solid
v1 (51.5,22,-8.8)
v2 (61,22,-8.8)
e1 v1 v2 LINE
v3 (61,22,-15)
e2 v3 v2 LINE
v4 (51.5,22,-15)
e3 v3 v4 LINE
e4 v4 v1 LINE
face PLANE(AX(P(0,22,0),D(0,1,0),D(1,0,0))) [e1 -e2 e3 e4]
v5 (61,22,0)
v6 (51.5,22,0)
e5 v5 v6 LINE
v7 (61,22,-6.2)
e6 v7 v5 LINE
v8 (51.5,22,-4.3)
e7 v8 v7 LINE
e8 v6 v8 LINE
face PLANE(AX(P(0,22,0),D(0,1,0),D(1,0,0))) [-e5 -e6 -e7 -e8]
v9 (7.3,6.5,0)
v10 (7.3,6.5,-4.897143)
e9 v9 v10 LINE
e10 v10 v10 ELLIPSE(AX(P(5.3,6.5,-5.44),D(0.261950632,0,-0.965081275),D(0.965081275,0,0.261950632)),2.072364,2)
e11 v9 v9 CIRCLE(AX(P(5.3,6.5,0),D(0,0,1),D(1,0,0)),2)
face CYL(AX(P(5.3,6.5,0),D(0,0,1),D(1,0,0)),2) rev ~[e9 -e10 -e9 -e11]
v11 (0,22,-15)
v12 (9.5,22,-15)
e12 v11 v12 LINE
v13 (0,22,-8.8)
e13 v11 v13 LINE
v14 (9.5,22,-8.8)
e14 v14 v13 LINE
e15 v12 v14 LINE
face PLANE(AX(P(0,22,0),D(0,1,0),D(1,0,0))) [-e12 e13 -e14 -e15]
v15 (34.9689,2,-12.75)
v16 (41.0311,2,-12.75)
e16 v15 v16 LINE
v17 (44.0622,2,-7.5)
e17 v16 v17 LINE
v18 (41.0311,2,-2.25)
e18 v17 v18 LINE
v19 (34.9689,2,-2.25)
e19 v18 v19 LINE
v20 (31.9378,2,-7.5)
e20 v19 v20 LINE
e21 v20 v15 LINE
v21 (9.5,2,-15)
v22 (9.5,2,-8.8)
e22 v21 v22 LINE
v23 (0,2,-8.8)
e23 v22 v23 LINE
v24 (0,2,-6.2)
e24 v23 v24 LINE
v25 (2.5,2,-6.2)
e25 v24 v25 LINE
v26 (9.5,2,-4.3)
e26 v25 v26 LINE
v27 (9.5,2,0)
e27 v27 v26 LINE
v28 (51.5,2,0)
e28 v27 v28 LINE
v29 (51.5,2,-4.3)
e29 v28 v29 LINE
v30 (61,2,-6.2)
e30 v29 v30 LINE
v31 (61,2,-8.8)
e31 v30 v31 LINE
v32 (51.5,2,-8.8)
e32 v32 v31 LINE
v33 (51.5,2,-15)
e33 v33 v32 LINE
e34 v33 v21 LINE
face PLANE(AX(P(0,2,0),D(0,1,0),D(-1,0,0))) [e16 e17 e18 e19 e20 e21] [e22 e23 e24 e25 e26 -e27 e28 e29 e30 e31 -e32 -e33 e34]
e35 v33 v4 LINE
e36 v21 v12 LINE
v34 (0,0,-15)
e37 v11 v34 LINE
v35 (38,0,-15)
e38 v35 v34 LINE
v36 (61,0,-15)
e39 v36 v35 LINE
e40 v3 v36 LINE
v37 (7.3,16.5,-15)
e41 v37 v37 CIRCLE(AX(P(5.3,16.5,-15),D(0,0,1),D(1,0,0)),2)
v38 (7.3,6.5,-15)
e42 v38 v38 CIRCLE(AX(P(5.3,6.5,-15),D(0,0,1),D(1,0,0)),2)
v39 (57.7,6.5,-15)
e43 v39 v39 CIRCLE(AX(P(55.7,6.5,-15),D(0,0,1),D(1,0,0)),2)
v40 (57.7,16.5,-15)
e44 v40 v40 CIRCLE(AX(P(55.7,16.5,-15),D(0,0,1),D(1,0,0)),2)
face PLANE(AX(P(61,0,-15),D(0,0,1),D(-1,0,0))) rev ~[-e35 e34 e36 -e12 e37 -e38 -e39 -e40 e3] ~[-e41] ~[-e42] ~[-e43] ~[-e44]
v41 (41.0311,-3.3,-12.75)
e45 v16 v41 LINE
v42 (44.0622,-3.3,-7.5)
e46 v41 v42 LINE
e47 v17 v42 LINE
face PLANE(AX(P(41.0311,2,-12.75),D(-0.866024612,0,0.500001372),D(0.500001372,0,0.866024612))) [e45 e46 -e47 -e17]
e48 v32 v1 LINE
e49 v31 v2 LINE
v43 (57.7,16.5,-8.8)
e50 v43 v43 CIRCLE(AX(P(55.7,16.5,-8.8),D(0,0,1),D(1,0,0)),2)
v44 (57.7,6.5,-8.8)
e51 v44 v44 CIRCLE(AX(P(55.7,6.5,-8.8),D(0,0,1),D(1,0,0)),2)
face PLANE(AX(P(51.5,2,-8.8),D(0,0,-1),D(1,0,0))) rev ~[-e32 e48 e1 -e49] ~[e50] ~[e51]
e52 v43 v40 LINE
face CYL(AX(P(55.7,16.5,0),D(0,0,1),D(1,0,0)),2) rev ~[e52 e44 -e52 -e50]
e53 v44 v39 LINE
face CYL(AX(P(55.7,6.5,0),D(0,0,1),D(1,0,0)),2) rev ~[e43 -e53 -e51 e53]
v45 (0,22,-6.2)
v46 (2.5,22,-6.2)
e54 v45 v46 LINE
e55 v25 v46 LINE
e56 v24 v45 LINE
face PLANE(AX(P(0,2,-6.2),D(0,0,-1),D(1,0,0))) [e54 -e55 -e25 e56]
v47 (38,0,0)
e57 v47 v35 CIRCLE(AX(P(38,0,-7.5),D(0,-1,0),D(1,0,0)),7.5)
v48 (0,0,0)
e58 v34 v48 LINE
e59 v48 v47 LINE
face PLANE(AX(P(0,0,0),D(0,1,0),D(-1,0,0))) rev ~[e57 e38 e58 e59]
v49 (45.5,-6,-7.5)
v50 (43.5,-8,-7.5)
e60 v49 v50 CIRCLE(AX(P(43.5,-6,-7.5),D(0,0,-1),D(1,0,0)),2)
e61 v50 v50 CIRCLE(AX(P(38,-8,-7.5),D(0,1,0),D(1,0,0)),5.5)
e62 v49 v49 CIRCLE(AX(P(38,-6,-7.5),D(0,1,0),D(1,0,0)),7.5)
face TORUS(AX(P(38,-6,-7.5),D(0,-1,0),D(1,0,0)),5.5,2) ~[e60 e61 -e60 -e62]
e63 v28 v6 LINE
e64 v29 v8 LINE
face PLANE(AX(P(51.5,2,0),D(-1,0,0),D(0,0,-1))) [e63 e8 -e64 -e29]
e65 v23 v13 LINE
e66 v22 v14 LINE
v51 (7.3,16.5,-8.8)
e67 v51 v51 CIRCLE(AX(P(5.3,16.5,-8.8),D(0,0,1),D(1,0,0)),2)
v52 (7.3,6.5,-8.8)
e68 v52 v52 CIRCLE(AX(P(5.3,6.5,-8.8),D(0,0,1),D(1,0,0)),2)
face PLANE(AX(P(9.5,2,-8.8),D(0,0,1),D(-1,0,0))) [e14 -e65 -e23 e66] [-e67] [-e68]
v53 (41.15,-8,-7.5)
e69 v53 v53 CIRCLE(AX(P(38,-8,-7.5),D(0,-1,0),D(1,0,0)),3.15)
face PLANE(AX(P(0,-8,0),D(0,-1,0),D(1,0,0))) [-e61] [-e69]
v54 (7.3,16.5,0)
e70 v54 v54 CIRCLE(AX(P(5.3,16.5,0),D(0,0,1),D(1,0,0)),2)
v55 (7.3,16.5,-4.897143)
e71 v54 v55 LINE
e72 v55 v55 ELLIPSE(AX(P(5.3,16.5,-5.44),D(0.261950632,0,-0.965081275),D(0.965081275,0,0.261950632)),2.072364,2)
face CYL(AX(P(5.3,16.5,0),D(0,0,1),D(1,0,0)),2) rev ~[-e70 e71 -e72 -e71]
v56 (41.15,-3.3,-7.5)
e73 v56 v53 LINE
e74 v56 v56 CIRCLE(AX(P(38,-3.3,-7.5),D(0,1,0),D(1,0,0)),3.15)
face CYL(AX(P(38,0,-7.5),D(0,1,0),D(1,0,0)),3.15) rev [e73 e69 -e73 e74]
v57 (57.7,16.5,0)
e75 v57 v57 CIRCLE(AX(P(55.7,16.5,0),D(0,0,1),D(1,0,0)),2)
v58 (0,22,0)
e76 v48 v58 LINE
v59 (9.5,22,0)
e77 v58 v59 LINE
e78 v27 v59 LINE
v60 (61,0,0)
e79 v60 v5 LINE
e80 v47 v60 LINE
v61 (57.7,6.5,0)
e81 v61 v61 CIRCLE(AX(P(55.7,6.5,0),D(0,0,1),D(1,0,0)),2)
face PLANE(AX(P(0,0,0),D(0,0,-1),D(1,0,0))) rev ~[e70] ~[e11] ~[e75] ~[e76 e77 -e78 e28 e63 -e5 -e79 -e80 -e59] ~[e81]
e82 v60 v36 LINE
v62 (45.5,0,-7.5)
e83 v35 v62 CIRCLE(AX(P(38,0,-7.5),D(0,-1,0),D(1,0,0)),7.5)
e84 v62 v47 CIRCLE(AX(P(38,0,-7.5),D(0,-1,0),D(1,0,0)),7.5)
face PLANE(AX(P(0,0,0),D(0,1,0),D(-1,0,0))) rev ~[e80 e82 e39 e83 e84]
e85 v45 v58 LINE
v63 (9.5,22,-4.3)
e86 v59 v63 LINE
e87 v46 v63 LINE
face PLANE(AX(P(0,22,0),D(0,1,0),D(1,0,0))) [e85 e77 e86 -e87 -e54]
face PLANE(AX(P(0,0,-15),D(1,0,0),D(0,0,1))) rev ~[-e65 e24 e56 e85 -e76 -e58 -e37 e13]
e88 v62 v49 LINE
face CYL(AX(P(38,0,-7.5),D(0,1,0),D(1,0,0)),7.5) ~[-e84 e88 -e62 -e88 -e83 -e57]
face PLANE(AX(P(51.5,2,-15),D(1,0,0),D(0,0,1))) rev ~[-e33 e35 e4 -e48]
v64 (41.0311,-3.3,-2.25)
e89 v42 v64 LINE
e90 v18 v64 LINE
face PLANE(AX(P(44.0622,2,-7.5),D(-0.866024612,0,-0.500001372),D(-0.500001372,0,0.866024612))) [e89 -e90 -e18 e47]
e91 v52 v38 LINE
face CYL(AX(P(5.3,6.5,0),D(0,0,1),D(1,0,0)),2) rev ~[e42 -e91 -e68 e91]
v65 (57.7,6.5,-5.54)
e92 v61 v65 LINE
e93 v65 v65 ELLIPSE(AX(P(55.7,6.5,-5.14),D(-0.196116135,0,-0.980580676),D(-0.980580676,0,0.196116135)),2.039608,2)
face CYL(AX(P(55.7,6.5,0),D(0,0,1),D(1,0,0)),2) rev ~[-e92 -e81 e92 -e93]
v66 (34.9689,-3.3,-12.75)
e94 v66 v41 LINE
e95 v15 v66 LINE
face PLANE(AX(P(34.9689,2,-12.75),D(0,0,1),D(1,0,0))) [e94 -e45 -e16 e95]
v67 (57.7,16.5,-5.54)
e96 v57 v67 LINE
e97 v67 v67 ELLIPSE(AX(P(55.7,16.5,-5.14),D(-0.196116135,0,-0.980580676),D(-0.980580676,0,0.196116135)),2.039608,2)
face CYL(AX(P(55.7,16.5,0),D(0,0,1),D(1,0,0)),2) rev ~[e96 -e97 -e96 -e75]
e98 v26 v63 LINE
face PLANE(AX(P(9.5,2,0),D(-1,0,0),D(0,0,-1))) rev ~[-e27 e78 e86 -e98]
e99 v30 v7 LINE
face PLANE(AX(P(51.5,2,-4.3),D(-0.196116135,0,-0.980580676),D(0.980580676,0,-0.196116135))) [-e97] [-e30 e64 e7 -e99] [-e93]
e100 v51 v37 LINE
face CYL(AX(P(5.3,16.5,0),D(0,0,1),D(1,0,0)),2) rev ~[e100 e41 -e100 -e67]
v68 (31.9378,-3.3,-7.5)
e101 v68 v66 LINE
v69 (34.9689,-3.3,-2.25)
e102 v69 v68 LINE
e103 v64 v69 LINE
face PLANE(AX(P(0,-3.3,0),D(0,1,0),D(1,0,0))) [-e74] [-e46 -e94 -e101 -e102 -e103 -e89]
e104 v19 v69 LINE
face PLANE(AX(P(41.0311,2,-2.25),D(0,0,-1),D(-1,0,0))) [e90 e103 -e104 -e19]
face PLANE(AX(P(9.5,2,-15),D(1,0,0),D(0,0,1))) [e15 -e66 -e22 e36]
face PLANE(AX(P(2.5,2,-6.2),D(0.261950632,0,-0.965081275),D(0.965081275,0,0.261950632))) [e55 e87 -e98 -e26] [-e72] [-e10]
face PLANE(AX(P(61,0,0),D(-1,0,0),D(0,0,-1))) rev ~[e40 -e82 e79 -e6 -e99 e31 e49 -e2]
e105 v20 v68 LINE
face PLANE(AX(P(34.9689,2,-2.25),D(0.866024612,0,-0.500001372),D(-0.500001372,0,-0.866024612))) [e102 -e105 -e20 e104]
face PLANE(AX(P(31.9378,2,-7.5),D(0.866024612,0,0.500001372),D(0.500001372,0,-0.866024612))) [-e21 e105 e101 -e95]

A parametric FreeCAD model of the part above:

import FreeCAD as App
import Part
import Sketcher

V = App.Vector
Q = App.Units.Quantity


def edges_at(feature, points):
    """Names of the edges that pass closest to the given points."""
    edges = feature.Shape.Edges
    near = lambda p: min(range(len(edges)), key=lambda i: edges[i].distToShape(Part.Vertex(*p))[0])
    return sorted({f"Edge{near(p) + 1}" for p in points})

doc = App.newDocument("Part")
body = doc.addObject("PartDesign::Body", "Body")

sketch1 = body.newObject("Sketcher::SketchObject", "Sketch")
sketch1.AttachmentSupport = (doc.getObject("XZ_Plane"), [""])
sketch1.MapMode = "FlatFace"
sketch1.addGeometry([
    Part.LineSegment(V(0, -15, 0), V(0, 0, 0)),
    Part.LineSegment(V(0, 0, 0), V(61, 0, 0)),
    Part.LineSegment(V(61, 0, 0), V(61, -15, 0)),
    Part.LineSegment(V(61, -15, 0), V(0, -15, 0)),
], False)
sketch1.addConstraint([
    Sketcher.Constraint("Coincident", 0, 2, 1, 1),
    Sketcher.Constraint("Coincident", 1, 2, 2, 1),
    Sketcher.Constraint("Coincident", 2, 2, 3, 1),
    Sketcher.Constraint("Coincident", 3, 2, 0, 1),
    Sketcher.Constraint("Vertical", 0),
    Sketcher.Constraint("Horizontal", 1),
    Sketcher.Constraint("Vertical", 2),
    Sketcher.Constraint("Horizontal", 3),
    Sketcher.Constraint("Coincident", 0, 2, -1, 1),
    Sketcher.Constraint("DistanceX", 1, 1, 1, 2, Q("61 mm")),
    Sketcher.Constraint("DistanceY", 0, 1, 0, 2, Q("15 mm")),
])
pad1 = body.newObject("PartDesign::Pad", "Pad")
pad1.Profile = sketch1
pad1.Length = 2
pad1.Reversed = True

sketch2 = body.newObject("Sketcher::SketchObject", "Sketch001")
sketch2.AttachmentSupport = (doc.getObject("XZ_Plane"), [""])
sketch2.MapMode = "FlatFace"
sketch2.AttachmentOffset = App.Placement(V(0, 0, -2), App.Rotation())
sketch2.addGeometry([
    Part.LineSegment(V(9.5, -15, 0), V(0, -15, 0)),
    Part.LineSegment(V(0, -15, 0), V(0, -8.8, 0)),
    Part.LineSegment(V(0, -8.8, 0), V(9.5, -8.8, 0)),
    Part.LineSegment(V(9.5, -8.8, 0), V(9.5, -15, 0)),
    Part.LineSegment(V(2.5, -6.2, 0), V(0, -6.2, 0)),
    Part.LineSegment(V(0, -6.2, 0), V(0, 0, 0)),
    Part.LineSegment(V(0, 0, 0), V(9.5, 0, 0)),
    Part.LineSegment(V(9.5, 0, 0), V(9.5, -4.3, 0)),
    Part.LineSegment(V(9.5, -4.3, 0), V(2.5, -6.2, 0)),
    Part.LineSegment(V(61, 0, 0), V(61, -6.2, 0)),
    Part.LineSegment(V(61, -6.2, 0), V(51.5, -4.3, 0)),
    Part.LineSegment(V(51.5, -4.3, 0), V(51.5, 0, 0)),
    Part.LineSegment(V(51.5, 0, 0), V(61, 0, 0)),
    Part.LineSegment(V(61, -8.8, 0), V(61, -15, 0)),
    Part.LineSegment(V(61, -15, 0), V(51.5, -15, 0)),
    Part.LineSegment(V(51.5, -15, 0), V(51.5, -8.8, 0)),
    Part.LineSegment(V(51.5, -8.8, 0), V(61, -8.8, 0)),
], False)
sketch2.addConstraint([
    Sketcher.Constraint("Coincident", 0, 2, 1, 1),
    Sketcher.Constraint("Coincident", 1, 2, 2, 1),
    Sketcher.Constraint("Coincident", 2, 2, 3, 1),
    Sketcher.Constraint("Coincident", 3, 2, 0, 1),
    Sketcher.Constraint("Coincident", 4, 2, 5, 1),
    Sketcher.Constraint("Coincident", 5, 2, 6, 1),
    Sketcher.Constraint("Coincident", 6, 2, 7, 1),
    Sketcher.Constraint("Coincident", 7, 2, 8, 1),
    Sketcher.Constraint("Coincident", 8, 2, 4, 1),
    Sketcher.Constraint("Coincident", 9, 2, 10, 1),
    Sketcher.Constraint("Coincident", 10, 2, 11, 1),
    Sketcher.Constraint("Coincident", 11, 2, 12, 1),
    Sketcher.Constraint("Coincident", 12, 2, 9, 1),
    Sketcher.Constraint("Coincident", 13, 2, 14, 1),
    Sketcher.Constraint("Coincident", 14, 2, 15, 1),
    Sketcher.Constraint("Coincident", 15, 2, 16, 1),
    Sketcher.Constraint("Coincident", 16, 2, 13, 1),
    Sketcher.Constraint("Horizontal", 0),
    Sketcher.Constraint("Vertical", 1),
    Sketcher.Constraint("Horizontal", 2),
    Sketcher.Constraint("Vertical", 3),
    Sketcher.Constraint("Horizontal", 4),
    Sketcher.Constraint("Vertical", 5),
    Sketcher.Constraint("Horizontal", 6),
    Sketcher.Constraint("Vertical", 7),
    Sketcher.Constraint("Vertical", 9),
    Sketcher.Constraint("Vertical", 11),
    Sketcher.Constraint("Horizontal", 12),
    Sketcher.Constraint("Vertical", 13),
    Sketcher.Constraint("Horizontal", 14),
    Sketcher.Constraint("Vertical", 15),
    Sketcher.Constraint("Horizontal", 16),
    Sketcher.Constraint("Coincident", 5, 2, -1, 1),
    Sketcher.Constraint("PointOnObject", 0, 2, -2),
    Sketcher.Constraint("PointOnObject", 11, 2, -1),
    Sketcher.Constraint("Horizontal", 8, 2, 9, 2),
    Sketcher.Constraint("Horizontal", 7, 2, 10, 2),
    Sketcher.Constraint("Horizontal", 3, 2, 13, 2),
    Sketcher.Constraint("Horizontal", 2, 2, 15, 2),
    Sketcher.Constraint("Vertical", 3, 2, 6, 2),
    Sketcher.Constraint("Vertical", 12, 2, 13, 2),
    Sketcher.Constraint("Vertical", 11, 2, 14, 2),
    Sketcher.Constraint("Equal", 6, 12),
    Sketcher.Constraint("Equal", 3, 5),
    Sketcher.Constraint("DistanceX", 4, 2, 4, 1, Q("2.5 mm")),
    Sketcher.Constraint("DistanceY", 1, 1, 1, 2, Q("6.2 mm")),
    Sketcher.Constraint("DistanceX", 8, 2, 7, 2, Q("7 mm")),
    Sketcher.Constraint("DistanceY", 1, 2, 4, 2, Q("2.6 mm")),
    Sketcher.Constraint("DistanceY", 2, 2, 7, 2, Q("4.5 mm")),
    Sketcher.Constraint("DistanceX", -1, 1, 9, 2, Q("61 mm")),
])
pad2 = body.newObject("PartDesign::Pad", "Pad001")
pad2.Profile = sketch2
pad2.Length = 20
pad2.Reversed = True

sketch3 = body.newObject("Sketcher::SketchObject", "Sketch002")
sketch3.AttachmentSupport = (doc.getObject("XY_Plane"), [""])
sketch3.MapMode = "FlatFace"
sketch3.addGeometry([
    Part.Circle(V(55.7, 16.5, 0), V(0, 0, 1), 2),
    Part.Circle(V(55.7, 6.5, 0), V(0, 0, 1), 2),
    Part.Circle(V(5.3, 16.5, 0), V(0, 0, 1), 2),
    Part.Circle(V(5.3, 6.5, 0), V(0, 0, 1), 2),
], False)
sketch3.addConstraint([
    Sketcher.Constraint("Equal", 0, 1),
    Sketcher.Constraint("Equal", 1, 2),
    Sketcher.Constraint("Equal", 2, 3),
    Sketcher.Constraint("Horizontal", 0, 3, 2, 3),
    Sketcher.Constraint("Horizontal", 1, 3, 3, 3),
    Sketcher.Constraint("Vertical", 0, 3, 1, 3),
    Sketcher.Constraint("Vertical", 2, 3, 3, 3),
    Sketcher.Constraint("Diameter", 0, Q("4 mm")),
    Sketcher.Constraint("DistanceY", 1, 3, 0, 3, Q("10 mm")),
    Sketcher.Constraint("DistanceX", -1, 1, 0, 3, Q("55.7 mm")),
    Sketcher.Constraint("DistanceY", -1, 1, 0, 3, Q("16.5 mm")),
    Sketcher.Constraint("DistanceX", -1, 1, 2, 3, Q("5.3 mm")),
])
pocket1 = body.newObject("PartDesign::Pocket", "Pocket")
pocket1.Profile = sketch3
pocket1.Length = 20

sketch4 = body.newObject("Sketcher::SketchObject", "Sketch003")
sketch4.AttachmentSupport = (doc.getObject("XZ_Plane"), [""])
sketch4.MapMode = "FlatFace"
sketch4.addGeometry([
    Part.Circle(V(38, -7.5, 0), V(0, 0, 1), 7.5),
    Part.Circle(V(38, -7.5, 0), V(0, 0, 1), 3.1),
], False)
sketch4.addConstraint([
    Sketcher.Constraint("Coincident", 1, 3, 0, 3),
    Sketcher.Constraint("Diameter", 0, Q("15 mm")),
    Sketcher.Constraint("Diameter", 1, Q("6.3 mm")),
    Sketcher.Constraint("DistanceX", -1, 1, 0, 3, Q("38 mm")),
    Sketcher.Constraint("DistanceY", 0, 3, -1, 1, Q("7.5 mm")),
])
pad3 = body.newObject("PartDesign::Pad", "Pad002")
pad3.Profile = sketch4
pad3.Length = 8

sketch5 = body.newObject("Sketcher::SketchObject", "Sketch004")
sketch5.AttachmentSupport = (doc.getObject("XZ_Plane"), [""])
sketch5.MapMode = "FlatFace"
sketch5.AttachmentOffset = App.Placement(V(0, 0, -2), App.Rotation())
sketch5.addGeometry([
    Part.LineSegment(V(35, -2, 0), V(41, -2, 0)),
    Part.LineSegment(V(41, -2, 0), V(44, -8, 0)),
    Part.LineSegment(V(44, -8, 0), V(41, -13, 0)),
    Part.LineSegment(V(41, -13, 0), V(35, -13, 0)),
    Part.LineSegment(V(35, -13, 0), V(32, -8, 0)),
    Part.LineSegment(V(32, -8, 0), V(35, -2, 0)),
], False)
sketch5.addConstraint([
    Sketcher.Constraint("Coincident", 0, 2, 1, 1),
    Sketcher.Constraint("Coincident", 1, 2, 2, 1),
    Sketcher.Constraint("Coincident", 2, 2, 3, 1),
    Sketcher.Constraint("Coincident", 3, 2, 4, 1),
    Sketcher.Constraint("Coincident", 4, 2, 5, 1),
    Sketcher.Constraint("Coincident", 5, 2, 0, 1),
    Sketcher.Constraint("Horizontal", 0),
    Sketcher.Constraint("Horizontal", 3),
    Sketcher.Constraint("Parallel", 1, 4),
    Sketcher.Constraint("Parallel", 2, 5),
    Sketcher.Constraint("Horizontal", 1, 2, 4, 2),
    Sketcher.Constraint("Vertical", 0, 2, 2, 2),
    Sketcher.Constraint("Vertical", 3, 2, 5, 2),
    Sketcher.Constraint("DistanceY", 2, 2, 0, 2, Q("10.5 mm")),
    Sketcher.Constraint("Angle", 1, Q("-60 deg")),
    Sketcher.Constraint("DistanceY", 1, 2, -1, 1, Q("7.5 mm")),
    Sketcher.Constraint("DistanceX", 0, 1, 0, 2, Q("6.0622 mm")),
    Sketcher.Constraint("DistanceX", -1, 1, 0, 2, Q("41.031 mm")),
])
pocket2 = body.newObject("PartDesign::Pocket", "Pocket001")
pocket2.Profile = sketch5
pocket2.Length = 5.3
pocket2.Reversed = True
doc.recompute()

fillet = body.newObject("PartDesign::Fillet", "Fillet")
fillet.Base = (pocket2, edges_at(pocket2, [(30.5, -8, -7.5)]))
fillet.Radius = 2

doc.recompute()
